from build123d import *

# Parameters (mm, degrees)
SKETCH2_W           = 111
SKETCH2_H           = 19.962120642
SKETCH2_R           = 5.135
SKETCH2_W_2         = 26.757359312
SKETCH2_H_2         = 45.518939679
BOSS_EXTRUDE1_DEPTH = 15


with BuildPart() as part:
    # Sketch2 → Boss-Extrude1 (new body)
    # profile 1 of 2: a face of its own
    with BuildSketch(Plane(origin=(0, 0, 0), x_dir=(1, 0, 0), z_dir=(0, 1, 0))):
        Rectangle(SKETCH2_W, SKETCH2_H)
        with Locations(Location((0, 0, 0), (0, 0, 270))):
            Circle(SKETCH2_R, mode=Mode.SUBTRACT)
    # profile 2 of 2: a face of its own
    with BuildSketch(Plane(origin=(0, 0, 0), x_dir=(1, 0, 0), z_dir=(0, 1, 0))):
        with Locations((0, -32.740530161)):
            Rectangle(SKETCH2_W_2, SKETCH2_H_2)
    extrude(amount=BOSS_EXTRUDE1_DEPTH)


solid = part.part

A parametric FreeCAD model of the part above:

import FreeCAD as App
import Part
import Sketcher

V = App.Vector

doc = App.newDocument("Part")
body = doc.addObject("PartDesign::Body", "Body")

sketch1 = body.newObject("Sketcher::SketchObject", "Sketch")
sketch1.AttachmentSupport = (doc.getObject("XZ_Plane"), [""])
sketch1.MapMode = "FlatFace"
sketch1.addGeometry(Part.LineSegment(V(-56, -10, 0), V(-56, 10, 0)), False)
sketch1.addGeometry(Part.LineSegment(V(-56, 10, 0), V(-13, 10, 0)), False)
sketch1.addGeometry(Part.LineSegment(V(-13, 10, 0), V(-13, 56, 0)), False)
sketch1.addGeometry(Part.LineSegment(V(-13, 56, 0), V(13, 56, 0)), False)
sketch1.addGeometry(Part.LineSegment(V(13, 56, 0), V(13, 10, 0)), False)
sketch1.addGeometry(Part.LineSegment(V(13, 10, 0), V(56, 10, 0)), False)
sketch1.addGeometry(Part.LineSegment(V(56, 10, 0), V(56, -10, 0)), False)
sketch1.addGeometry(Part.LineSegment(V(56, -10, 0), V(-56, -10, 0)), False)
sketch1.addGeometry(Part.Circle(V(0, 0, 0), V(0, 0, 1), 5), False)
sketch1.addConstraint(Sketcher.Constraint("Coincident", 0, 2, 1, 1))
sketch1.addConstraint(Sketcher.Constraint("Coincident", 1, 2, 2, 1))
sketch1.addConstraint(Sketcher.Constraint("Coincident", 2, 2, 3, 1))
sketch1.addConstraint(Sketcher.Constraint("Coincident", 3, 2, 4, 1))
sketch1.addConstraint(Sketcher.Constraint("Coincident", 4, 2, 5, 1))
sketch1.addConstraint(Sketcher.Constraint("Coincident", 5, 2, 6, 1))
sketch1.addConstraint(Sketcher.Constraint("Coincident", 6, 2, 7, 1))
sketch1.addConstraint(Sketcher.Constraint("Coincident", 7, 2, 0, 1))
sketch1.addConstraint(Sketcher.Constraint("Vertical", 0))
sketch1.addConstraint(Sketcher.Constraint("Horizontal", 1))
sketch1.addConstraint(Sketcher.Constraint("Vertical", 2))
sketch1.addConstraint(Sketcher.Constraint("Horizontal", 3))
sketch1.addConstraint(Sketcher.Constraint("Vertical", 4))
sketch1.addConstraint(Sketcher.Constraint("Horizontal", 5))
sketch1.addConstraint(Sketcher.Constraint("Vertical", 6))
sketch1.addConstraint(Sketcher.Constraint("Horizontal", 7))
sketch1.addConstraint(Sketcher.Constraint("Coincident", 8, 3, -1, 1))
sketch1.addConstraint(Sketcher.Constraint("Symmetric", 0, 2, 6, 2, -1, 1))
sketch1.addConstraint(Sketcher.Constraint("Symmetric", 1, 2, 4, 2, -2))
sketch1.addConstraint(Sketcher.Constraint("Diameter", 8, 10.27))
sketch1.addConstraint(Sketcher.Constraint("DistanceX", 7, 2, 7, 1, 111.0))
sketch1.addConstraint(Sketcher.Constraint("DistanceY", -1, 1, 2, 2, 55.5))
sketch1.addConstraint(Sketcher.Constraint("DistanceX", 1, 1, 1, 2, 42.12132))
sketch1.addConstraint(Sketcher.Constraint("DistanceY", 0, 1, 0, 2, 19.962121))
pad1 = body.newObject("PartDesign::Pad", "Pad")
pad1.Profile = sketch1
pad1.Length = 15
pad1.Reversed = True

doc.recompute()
